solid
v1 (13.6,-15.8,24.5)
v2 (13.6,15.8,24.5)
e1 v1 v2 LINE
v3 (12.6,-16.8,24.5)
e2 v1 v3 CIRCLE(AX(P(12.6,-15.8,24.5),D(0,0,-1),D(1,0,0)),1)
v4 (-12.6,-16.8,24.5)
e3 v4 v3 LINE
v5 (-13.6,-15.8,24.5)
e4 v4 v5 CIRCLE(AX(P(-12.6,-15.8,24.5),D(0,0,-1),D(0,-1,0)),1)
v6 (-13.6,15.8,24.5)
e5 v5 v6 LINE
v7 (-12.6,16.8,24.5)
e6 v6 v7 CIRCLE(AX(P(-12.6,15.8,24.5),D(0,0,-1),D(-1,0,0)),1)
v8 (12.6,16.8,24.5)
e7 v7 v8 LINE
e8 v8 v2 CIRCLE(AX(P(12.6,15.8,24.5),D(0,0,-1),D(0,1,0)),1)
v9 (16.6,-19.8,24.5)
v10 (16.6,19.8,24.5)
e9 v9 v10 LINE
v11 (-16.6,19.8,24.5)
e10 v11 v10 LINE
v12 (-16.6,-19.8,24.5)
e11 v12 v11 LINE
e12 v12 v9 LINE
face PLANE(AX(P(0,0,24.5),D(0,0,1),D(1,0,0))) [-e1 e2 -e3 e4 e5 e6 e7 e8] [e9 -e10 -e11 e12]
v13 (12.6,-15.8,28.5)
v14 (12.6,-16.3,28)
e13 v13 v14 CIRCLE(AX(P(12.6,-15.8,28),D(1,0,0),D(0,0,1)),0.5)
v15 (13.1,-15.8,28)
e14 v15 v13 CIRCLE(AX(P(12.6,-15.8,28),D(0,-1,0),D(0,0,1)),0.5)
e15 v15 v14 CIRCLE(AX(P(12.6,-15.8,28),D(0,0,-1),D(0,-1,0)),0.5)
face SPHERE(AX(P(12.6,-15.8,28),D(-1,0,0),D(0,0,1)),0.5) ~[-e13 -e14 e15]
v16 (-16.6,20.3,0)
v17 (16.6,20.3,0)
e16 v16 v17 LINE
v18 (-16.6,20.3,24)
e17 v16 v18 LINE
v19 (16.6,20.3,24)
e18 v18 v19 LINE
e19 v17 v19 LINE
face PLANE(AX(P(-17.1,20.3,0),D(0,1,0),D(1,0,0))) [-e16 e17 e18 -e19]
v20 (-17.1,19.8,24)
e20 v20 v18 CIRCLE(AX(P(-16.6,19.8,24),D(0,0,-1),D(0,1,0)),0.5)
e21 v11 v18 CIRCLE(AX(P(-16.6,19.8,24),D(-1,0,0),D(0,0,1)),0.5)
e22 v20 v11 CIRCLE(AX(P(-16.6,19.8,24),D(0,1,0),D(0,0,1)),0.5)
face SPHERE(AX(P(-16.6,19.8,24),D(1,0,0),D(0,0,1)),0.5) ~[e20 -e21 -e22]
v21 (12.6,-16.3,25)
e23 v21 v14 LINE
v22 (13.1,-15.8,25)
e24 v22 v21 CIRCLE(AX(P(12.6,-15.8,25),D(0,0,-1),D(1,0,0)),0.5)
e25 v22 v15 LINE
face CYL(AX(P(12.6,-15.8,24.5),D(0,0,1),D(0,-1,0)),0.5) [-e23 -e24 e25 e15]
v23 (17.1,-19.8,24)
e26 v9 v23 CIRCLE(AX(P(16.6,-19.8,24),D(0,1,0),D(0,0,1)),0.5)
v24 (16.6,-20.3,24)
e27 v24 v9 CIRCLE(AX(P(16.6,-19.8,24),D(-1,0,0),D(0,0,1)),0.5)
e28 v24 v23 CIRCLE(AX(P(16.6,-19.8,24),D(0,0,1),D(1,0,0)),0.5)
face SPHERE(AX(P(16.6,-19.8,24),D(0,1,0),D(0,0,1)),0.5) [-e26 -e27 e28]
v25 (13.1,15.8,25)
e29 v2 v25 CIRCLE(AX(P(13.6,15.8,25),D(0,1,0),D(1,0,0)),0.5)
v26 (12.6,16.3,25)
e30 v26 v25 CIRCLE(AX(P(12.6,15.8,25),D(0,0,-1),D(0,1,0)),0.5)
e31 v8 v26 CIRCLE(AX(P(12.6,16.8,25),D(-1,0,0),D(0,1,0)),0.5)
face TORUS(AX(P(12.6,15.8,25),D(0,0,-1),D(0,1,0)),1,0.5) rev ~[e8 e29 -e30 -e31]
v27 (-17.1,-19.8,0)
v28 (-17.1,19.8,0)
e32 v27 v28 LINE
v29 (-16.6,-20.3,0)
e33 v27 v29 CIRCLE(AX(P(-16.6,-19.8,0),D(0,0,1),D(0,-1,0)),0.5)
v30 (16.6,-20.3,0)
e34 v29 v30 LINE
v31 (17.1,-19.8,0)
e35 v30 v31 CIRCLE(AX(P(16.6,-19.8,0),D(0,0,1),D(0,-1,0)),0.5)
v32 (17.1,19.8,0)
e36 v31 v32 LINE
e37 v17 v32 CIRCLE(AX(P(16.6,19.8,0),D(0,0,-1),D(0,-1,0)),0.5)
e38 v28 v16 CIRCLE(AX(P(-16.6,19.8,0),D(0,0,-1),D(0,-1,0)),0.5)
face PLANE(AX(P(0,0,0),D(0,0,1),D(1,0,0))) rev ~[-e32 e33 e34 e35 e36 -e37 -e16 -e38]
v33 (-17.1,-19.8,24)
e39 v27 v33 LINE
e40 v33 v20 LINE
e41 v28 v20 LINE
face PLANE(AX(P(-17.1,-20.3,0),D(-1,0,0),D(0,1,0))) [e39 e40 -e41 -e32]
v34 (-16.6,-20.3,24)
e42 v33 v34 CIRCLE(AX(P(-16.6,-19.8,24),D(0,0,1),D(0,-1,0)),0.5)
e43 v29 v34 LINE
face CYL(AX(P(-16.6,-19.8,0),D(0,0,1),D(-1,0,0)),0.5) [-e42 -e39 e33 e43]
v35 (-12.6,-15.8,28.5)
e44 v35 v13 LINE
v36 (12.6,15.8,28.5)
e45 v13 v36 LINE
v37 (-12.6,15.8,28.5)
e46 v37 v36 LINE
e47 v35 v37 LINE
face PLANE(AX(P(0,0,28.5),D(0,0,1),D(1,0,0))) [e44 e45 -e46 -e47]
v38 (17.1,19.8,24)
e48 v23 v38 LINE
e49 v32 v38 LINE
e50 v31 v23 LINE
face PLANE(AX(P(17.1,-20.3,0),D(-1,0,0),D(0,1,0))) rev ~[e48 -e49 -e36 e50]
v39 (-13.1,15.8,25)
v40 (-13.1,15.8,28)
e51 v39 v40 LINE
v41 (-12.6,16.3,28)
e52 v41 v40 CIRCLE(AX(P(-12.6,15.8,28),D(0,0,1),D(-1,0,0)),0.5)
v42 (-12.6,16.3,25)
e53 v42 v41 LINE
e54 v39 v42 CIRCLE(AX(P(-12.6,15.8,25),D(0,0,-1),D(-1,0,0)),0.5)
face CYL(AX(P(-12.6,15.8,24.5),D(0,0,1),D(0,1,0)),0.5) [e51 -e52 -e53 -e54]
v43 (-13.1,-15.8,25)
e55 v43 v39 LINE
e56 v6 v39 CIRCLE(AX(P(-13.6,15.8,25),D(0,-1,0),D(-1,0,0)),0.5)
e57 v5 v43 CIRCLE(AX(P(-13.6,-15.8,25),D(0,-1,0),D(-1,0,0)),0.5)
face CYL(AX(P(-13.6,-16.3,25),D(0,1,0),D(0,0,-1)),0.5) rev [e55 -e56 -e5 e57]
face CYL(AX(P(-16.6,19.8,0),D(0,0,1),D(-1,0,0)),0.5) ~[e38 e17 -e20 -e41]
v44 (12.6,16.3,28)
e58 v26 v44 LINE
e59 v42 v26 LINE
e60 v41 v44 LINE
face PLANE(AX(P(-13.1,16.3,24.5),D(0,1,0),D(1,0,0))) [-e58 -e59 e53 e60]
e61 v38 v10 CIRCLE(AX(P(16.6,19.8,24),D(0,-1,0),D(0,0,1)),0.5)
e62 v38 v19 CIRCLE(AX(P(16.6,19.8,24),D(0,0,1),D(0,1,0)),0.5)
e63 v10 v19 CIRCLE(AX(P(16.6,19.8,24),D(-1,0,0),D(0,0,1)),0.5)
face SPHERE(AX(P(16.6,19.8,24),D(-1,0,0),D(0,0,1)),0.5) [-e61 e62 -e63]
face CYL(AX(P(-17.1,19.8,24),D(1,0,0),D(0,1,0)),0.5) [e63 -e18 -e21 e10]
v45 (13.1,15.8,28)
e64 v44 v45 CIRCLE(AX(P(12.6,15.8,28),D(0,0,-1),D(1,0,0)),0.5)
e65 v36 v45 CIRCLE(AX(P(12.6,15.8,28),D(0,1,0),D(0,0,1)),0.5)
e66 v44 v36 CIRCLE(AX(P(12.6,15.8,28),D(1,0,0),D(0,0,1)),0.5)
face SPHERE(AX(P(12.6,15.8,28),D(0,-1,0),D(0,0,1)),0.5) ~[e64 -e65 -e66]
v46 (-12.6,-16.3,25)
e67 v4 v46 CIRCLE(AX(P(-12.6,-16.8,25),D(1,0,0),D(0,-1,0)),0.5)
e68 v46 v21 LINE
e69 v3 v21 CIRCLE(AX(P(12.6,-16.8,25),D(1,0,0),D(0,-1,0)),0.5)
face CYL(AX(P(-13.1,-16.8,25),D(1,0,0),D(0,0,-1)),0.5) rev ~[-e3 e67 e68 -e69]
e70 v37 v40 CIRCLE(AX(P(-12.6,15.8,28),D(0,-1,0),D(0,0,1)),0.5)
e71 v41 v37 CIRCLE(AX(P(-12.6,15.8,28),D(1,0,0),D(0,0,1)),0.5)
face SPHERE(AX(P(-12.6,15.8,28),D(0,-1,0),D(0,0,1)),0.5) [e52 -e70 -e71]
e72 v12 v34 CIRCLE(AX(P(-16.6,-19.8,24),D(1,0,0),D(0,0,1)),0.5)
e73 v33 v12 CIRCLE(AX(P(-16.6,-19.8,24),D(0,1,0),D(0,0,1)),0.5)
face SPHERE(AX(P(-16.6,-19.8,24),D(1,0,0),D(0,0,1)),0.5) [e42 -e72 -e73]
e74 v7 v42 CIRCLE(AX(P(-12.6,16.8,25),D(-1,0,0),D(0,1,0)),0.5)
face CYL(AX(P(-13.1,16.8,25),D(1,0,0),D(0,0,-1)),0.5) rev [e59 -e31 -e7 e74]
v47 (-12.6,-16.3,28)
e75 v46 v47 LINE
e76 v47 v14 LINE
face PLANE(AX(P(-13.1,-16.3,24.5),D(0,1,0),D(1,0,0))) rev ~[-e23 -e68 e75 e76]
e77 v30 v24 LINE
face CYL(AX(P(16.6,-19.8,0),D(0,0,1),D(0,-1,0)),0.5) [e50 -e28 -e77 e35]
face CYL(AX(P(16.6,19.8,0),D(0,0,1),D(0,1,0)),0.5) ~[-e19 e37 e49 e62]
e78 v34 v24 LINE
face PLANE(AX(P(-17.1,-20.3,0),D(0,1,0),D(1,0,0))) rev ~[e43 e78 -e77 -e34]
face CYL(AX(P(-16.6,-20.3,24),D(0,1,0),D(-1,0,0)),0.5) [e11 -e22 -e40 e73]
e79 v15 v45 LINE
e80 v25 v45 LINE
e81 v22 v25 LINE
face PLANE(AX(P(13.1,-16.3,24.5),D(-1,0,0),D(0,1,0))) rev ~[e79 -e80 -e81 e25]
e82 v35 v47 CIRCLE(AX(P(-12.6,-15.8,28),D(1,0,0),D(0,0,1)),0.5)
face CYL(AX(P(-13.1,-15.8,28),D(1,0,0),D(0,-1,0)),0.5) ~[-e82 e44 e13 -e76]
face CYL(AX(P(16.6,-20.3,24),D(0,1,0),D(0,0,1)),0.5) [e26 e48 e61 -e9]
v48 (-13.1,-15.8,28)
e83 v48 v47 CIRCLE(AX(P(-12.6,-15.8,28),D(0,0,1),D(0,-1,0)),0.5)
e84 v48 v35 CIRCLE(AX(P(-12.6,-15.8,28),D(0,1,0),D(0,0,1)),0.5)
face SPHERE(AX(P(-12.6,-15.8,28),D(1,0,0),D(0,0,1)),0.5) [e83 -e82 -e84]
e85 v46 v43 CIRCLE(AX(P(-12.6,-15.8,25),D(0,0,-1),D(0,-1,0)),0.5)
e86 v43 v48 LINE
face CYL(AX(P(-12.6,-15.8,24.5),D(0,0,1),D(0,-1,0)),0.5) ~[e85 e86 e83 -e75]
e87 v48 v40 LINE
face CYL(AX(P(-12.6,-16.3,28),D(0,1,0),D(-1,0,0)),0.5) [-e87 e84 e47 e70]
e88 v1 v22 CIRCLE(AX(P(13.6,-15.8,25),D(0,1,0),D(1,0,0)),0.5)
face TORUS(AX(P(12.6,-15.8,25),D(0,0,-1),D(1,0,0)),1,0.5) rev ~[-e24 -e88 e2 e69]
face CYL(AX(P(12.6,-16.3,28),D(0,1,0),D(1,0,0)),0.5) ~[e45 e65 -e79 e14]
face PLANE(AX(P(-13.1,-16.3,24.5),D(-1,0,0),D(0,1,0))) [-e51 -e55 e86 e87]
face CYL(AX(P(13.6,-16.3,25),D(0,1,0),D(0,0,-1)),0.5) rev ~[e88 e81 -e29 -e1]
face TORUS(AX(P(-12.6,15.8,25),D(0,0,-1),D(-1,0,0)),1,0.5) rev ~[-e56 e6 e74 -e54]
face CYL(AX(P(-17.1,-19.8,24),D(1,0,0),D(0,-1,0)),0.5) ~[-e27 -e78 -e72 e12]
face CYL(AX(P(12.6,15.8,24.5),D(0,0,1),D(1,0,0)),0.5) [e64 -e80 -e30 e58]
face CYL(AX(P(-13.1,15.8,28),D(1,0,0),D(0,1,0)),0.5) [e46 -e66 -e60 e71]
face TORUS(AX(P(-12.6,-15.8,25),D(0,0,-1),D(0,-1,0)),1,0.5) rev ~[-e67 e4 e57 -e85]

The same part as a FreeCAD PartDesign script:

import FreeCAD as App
import Part
import Sketcher
from FreeCAD import Vector
Q = App.Units.Quantity


def edges_at(feature, points):
    """Names of the edges that pass closest to the given points."""
    edges = feature.Shape.Edges
    near = lambda p: min(range(len(edges)), key=lambda i: edges[i].distToShape(Part.Vertex(*p))[0])
    return sorted({f"Edge{near(p) + 1}" for p in points})


def add_polygon(sketch, points):
    """Adds a closed chain of lines whose ends are joined by coincident constraints."""
    first, n = sketch.GeometryCount, len(points)
    for a, b in zip(points, points[1:] + points[:1]):
        sketch.addGeometry(Part.LineSegment(App.Vector(*a, 0), App.Vector(*b, 0)), False)
    for i in range(n):
        sketch.addConstraint(Sketcher.Constraint("Coincident", first + i, 2, first + (i + 1) % n, 1))

doc = App.newDocument("Part")
body = doc.addObject("PartDesign::Body", "Body")

# Sketch on XY plane
sketch1 = doc.addObject("Sketcher::SketchObject", "Sketch")
body.addObject(sketch1)
sketch1.AttachmentSupport = (doc.XY_Plane, [""])
sketch1.MapMode = "FlatFace"
add_polygon(sketch1, [(-17, 20), (-17, -20), (17, -20), (17, 20)])  # lines 0-3
sketch1.addConstraint(Sketcher.Constraint("Vertical", 0))
sketch1.addConstraint(Sketcher.Constraint("Horizontal", 1))
sketch1.addConstraint(Sketcher.Constraint("Vertical", 2))
sketch1.addConstraint(Sketcher.Constraint("Horizontal", 3))
sketch1.addConstraint(Sketcher.Constraint("Symmetric", 0, 2, 2, 2, -1, 1))
sketch1.addConstraint(Sketcher.Constraint("DistanceX", 1, 1, 1, 2, Q("34.2 mm")))
sketch1.addConstraint(Sketcher.Constraint("DistanceY", 0, 2, 0, 1, Q("40.6 mm")))
pad1 = doc.addObject("PartDesign::Pad", "Pad")
body.addObject(pad1)
pad1.Profile = sketch1
pad1.Length = 24.5

# Sketch on XY plane
sketch2 = doc.addObject("Sketcher::SketchObject", "Sketch001")
body.addObject(sketch2)
sketch2.AttachmentSupport = (doc.XY_Plane, [""])
sketch2.MapMode = "FlatFace"
sketch2.AttachmentOffset = App.Placement(Vector(0, 0, 24.5), App.Rotation())
add_polygon(sketch2, [(-13, 16), (-13, -16), (13, -16), (13, 16)])  # lines 0-3
sketch2.addConstraint(Sketcher.Constraint("Vertical", 0))
sketch2.addConstraint(Sketcher.Constraint("Horizontal", 1))
sketch2.addConstraint(Sketcher.Constraint("Vertical", 2))
sketch2.addConstraint(Sketcher.Constraint("Horizontal", 3))
sketch2.addConstraint(Sketcher.Constraint("Symmetric", 0, 2, 2, 2, -1, 1))
sketch2.addConstraint(Sketcher.Constraint("DistanceX", 1, 1, 1, 2, Q("26.2 mm")))
sketch2.addConstraint(Sketcher.Constraint("DistanceY", 0, 2, 0, 1, Q("32.6 mm")))
pad2 = doc.addObject("PartDesign::Pad", "Pad001")
body.addObject(pad2)
pad2.Profile = sketch2
pad2.Length = 4
doc.recompute()

fillet = doc.addObject("PartDesign::Fillet", "Fillet")
body.addObject(fillet)
fillet.Base = (pad2, edges_at(pad2, [
    (0, -16.3, 28.5),
    (-13.1, 0, 28.5),
    (13.1, 0, 28.5),
    (0, 16.3, 28.5),
    (0, 20.3, 24.5),
    (17.1, 0, 24.5),
    (0, -20.3, 24.5),
    (-17.1, 0, 24.5),
    (-13.1, -16.3, 26.5),
    (0, -16.3, 24.5),
    (13.1, -16.3, 26.5),
    (13.1, 0, 24.5),
    (13.1, 16.3, 26.5),
    (0, 16.3, 24.5),
    (-13.1, 16.3, 26.5),
    (-13.1, 0, 24.5),
    (-17.1, 20.3, 12.25),
    (17.1, -20.3, 12.25),
    (17.1, 20.3, 12.25),
    (-17.1, -20.3, 12.25),
]))
fillet.Radius = 0.5

doc.recompute()
